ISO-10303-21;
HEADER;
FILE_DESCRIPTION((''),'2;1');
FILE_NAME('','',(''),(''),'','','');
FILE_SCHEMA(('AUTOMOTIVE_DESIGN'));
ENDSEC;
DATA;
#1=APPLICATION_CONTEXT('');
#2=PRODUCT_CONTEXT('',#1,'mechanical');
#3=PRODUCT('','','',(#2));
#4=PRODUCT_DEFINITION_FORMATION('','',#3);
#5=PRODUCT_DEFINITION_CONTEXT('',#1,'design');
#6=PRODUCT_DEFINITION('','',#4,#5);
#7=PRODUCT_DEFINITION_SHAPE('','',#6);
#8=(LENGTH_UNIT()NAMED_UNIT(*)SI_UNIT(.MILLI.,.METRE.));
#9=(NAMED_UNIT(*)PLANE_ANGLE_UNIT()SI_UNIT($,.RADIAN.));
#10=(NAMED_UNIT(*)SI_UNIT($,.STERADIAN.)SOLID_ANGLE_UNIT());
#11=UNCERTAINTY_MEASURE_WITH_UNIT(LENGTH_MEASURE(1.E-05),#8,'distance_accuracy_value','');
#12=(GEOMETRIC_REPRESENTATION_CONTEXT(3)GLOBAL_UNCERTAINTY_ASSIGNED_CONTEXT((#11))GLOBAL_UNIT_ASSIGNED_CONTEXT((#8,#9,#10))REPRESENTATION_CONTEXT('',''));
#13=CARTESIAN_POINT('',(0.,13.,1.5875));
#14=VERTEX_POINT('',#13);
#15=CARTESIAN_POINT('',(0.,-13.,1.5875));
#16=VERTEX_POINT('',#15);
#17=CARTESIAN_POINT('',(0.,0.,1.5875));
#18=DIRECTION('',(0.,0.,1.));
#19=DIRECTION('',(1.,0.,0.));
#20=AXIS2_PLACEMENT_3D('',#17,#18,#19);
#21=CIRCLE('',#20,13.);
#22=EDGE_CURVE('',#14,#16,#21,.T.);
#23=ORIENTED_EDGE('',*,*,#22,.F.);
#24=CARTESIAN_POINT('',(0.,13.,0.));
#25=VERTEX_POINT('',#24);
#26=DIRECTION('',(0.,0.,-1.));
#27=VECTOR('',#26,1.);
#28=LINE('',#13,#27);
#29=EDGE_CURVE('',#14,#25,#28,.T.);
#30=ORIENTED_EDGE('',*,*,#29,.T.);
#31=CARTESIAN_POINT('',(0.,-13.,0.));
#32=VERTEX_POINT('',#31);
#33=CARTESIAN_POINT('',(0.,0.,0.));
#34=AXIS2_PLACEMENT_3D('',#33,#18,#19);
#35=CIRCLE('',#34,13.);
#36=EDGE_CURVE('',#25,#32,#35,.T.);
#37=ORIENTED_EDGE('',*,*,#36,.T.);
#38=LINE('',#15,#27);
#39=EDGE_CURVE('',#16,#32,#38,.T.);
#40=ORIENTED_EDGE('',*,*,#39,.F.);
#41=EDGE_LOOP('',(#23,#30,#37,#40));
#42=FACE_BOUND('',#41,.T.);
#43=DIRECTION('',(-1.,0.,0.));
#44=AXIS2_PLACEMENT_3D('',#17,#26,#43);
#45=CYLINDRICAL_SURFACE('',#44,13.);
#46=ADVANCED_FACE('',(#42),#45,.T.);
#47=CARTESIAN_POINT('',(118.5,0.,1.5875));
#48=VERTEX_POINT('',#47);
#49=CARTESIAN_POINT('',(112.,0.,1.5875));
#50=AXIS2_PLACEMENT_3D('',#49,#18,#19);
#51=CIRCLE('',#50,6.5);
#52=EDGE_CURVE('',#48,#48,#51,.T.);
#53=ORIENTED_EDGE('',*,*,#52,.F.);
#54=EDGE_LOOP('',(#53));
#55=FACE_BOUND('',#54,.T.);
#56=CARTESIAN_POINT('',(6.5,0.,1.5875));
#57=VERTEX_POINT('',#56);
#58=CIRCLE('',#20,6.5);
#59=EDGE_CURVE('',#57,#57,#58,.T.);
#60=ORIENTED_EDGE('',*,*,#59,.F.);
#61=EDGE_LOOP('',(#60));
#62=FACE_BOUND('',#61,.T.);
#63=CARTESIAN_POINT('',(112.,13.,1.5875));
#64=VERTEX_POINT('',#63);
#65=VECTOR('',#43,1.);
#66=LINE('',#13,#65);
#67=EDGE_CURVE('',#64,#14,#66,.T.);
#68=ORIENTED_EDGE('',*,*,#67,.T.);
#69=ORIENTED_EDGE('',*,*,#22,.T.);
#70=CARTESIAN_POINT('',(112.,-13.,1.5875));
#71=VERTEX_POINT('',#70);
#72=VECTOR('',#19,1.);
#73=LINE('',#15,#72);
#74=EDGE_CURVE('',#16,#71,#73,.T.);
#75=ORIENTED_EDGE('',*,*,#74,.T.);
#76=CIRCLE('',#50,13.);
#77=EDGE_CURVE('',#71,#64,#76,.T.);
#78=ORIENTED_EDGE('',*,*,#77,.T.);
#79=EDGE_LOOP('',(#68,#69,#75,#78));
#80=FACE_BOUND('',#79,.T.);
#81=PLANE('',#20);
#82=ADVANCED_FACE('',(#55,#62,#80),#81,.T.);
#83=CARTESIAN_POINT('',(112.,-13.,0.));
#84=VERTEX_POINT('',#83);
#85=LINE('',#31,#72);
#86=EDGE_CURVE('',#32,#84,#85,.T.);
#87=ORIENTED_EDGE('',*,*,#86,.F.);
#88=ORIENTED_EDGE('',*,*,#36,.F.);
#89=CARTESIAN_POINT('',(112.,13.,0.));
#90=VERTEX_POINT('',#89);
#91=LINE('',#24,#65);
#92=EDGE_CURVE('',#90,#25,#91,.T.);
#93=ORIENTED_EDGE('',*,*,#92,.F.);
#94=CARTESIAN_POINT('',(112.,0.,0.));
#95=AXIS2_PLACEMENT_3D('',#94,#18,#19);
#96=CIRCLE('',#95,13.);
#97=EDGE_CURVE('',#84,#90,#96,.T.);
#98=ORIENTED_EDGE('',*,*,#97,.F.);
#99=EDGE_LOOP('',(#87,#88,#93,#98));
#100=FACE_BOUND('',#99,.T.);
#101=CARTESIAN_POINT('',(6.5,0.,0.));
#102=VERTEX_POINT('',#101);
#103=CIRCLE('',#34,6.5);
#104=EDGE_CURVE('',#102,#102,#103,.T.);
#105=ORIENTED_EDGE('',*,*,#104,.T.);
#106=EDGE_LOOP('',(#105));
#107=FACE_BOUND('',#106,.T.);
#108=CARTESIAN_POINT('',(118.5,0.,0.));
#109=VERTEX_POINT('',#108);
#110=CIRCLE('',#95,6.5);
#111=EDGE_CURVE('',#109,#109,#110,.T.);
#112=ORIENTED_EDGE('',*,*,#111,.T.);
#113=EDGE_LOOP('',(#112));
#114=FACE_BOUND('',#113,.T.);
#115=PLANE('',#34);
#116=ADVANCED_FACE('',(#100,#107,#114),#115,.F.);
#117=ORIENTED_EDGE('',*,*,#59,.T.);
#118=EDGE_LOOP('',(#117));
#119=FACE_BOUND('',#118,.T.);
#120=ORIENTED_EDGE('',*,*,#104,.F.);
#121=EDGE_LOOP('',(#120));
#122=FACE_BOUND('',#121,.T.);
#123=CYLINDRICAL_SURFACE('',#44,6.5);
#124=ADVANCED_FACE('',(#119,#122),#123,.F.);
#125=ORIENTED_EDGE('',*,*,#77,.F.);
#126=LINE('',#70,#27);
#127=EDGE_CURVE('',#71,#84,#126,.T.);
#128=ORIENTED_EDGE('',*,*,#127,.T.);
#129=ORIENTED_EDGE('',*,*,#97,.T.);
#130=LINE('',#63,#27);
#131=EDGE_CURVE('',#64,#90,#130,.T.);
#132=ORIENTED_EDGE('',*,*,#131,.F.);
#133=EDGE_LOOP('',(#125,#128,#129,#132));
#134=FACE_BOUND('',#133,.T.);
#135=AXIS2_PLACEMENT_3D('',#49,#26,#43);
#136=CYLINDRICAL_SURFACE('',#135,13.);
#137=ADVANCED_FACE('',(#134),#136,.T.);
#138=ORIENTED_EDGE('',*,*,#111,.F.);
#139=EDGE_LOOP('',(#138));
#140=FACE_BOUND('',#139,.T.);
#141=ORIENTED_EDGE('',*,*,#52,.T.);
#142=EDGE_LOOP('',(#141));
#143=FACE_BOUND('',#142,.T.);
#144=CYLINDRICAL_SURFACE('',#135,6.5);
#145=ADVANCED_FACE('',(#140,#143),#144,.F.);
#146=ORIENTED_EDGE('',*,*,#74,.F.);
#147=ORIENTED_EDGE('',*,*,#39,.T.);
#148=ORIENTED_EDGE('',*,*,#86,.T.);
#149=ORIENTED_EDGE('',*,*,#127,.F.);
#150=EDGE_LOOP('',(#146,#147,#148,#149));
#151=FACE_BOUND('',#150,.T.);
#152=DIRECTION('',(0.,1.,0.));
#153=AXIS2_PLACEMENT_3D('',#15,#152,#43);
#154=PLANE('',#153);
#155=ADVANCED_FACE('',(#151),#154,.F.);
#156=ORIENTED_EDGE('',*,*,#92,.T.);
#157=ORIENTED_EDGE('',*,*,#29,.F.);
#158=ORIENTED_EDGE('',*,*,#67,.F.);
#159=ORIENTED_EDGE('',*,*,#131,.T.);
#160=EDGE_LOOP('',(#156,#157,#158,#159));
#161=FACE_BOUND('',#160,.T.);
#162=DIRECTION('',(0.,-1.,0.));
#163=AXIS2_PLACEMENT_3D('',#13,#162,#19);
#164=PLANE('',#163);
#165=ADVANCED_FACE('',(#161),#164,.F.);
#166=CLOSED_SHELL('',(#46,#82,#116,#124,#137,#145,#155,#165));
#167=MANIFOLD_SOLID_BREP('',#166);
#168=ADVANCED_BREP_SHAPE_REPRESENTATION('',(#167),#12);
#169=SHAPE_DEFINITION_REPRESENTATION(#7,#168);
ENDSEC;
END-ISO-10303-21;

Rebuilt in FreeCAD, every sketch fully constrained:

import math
import FreeCAD as App
import Part
import Sketcher
from FreeCAD import Vector
Q = App.Units.Quantity

doc = App.newDocument("Part")
body = doc.addObject("PartDesign::Body", "Body")

sketch1 = body.newObject("Sketcher::SketchObject", "Sketch")
sketch1.AttachmentSupport = (doc.getObject("XY_Plane"), [""])
sketch1.MapMode = "FlatFace"
sketch1.addGeometry(Part.LineSegment(Vector(112, 13, 0), Vector(0, 13, 0)), False)
sketch1.addGeometry(Part.ArcOfCircle(Part.Circle(Vector(0, 0, 0), Vector(0, 0, 1), 13), math.radians(90), math.radians(270)), False)
sketch1.addGeometry(Part.LineSegment(Vector(0, -13, 0), Vector(112, -13, 0)), False)
sketch1.addGeometry(Part.ArcOfCircle(Part.Circle(Vector(112, 0, 0), Vector(0, 0, 1), 13), math.radians(-90), math.radians(90)), False)
sketch1.addGeometry(Part.Circle(Vector(112, 0, 0), Vector(0, 0, 1), 6.5), False)
sketch1.addGeometry(Part.Circle(Vector(0, 0, 0), Vector(0, 0, 1), 6.5), False)
sketch1.addConstraint(Sketcher.Constraint("Tangent", 0, 2, 1, 1))
sketch1.addConstraint(Sketcher.Constraint("Tangent", 1, 2, 2, 1))
sketch1.addConstraint(Sketcher.Constraint("Tangent", 2, 2, 3, 1))
sketch1.addConstraint(Sketcher.Constraint("Tangent", 3, 2, 0, 1))
sketch1.addConstraint(Sketcher.Constraint("Horizontal", 0))
sketch1.addConstraint(Sketcher.Constraint("Horizontal", 2))
sketch1.addConstraint(Sketcher.Constraint("Coincident", 1, 3, -1, 1))
sketch1.addConstraint(Sketcher.Constraint("Coincident", 5, 3, -1, 1))
sketch1.addConstraint(Sketcher.Constraint("Coincident", 4, 3, 3, 3))
sketch1.addConstraint(Sketcher.Constraint("Equal", 4, 5))
sketch1.addConstraint(Sketcher.Constraint("Diameter", 4, Q("13 mm")))
sketch1.addConstraint(Sketcher.Constraint("Radius", 1, Q("13 mm")))
sketch1.addConstraint(Sketcher.Constraint("DistanceX", 0, 2, 0, 1, Q("112 mm")))
pad1 = body.newObject("PartDesign::Pad", "Pad")
pad1.Profile = sketch1
pad1.Length = 1.5875

doc.recompute()
